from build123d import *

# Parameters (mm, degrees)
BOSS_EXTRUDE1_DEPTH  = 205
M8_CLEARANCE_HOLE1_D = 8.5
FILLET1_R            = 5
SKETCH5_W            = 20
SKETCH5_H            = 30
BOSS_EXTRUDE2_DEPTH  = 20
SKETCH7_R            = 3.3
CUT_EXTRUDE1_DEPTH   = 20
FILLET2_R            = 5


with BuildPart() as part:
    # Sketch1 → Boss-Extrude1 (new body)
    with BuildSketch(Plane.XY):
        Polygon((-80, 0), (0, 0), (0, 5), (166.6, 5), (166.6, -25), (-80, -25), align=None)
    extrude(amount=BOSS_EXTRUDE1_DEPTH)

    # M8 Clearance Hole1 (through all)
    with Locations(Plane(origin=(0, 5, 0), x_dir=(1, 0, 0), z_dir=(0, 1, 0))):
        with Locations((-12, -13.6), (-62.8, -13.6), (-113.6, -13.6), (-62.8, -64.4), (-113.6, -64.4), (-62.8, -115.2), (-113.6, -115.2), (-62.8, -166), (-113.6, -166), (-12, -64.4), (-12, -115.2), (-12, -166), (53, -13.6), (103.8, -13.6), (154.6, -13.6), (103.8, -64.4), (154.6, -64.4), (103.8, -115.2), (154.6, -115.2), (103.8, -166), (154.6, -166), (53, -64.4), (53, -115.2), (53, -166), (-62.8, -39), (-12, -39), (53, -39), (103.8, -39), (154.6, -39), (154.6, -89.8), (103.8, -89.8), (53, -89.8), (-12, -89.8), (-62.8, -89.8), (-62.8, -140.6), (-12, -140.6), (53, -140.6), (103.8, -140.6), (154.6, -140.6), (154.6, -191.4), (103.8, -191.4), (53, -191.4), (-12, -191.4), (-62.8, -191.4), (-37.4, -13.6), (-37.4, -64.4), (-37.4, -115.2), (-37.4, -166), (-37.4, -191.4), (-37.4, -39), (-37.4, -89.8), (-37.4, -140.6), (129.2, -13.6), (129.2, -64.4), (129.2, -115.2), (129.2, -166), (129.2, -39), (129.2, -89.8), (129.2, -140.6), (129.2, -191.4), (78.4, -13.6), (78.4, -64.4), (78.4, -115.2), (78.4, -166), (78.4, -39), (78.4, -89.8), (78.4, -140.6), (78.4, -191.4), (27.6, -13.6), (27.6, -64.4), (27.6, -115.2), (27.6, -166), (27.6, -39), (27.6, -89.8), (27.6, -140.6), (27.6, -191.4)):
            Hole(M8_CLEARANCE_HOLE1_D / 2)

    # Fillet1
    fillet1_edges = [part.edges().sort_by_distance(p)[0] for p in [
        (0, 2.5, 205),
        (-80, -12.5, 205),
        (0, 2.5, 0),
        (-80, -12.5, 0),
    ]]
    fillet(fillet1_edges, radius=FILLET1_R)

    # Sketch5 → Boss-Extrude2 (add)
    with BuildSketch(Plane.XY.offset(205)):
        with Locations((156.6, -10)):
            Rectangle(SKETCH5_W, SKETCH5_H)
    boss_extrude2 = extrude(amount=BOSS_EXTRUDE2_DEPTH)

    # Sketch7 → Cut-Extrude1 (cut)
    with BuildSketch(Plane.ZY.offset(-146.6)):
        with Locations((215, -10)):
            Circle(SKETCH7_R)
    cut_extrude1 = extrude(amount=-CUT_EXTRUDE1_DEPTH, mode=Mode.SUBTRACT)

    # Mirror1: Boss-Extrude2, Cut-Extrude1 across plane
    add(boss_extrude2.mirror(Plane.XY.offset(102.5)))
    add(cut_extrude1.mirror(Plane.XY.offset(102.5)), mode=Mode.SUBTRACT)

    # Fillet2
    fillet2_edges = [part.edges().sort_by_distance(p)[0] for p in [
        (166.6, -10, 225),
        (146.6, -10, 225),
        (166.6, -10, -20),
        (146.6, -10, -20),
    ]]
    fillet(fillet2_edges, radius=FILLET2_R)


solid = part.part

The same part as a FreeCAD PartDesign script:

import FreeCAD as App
import Part
import Sketcher
from FreeCAD import Vector


def edges_at(feature, points):
    """Names of the edges that pass closest to the given points."""
    edges = feature.Shape.Edges
    near = lambda p: min(range(len(edges)), key=lambda i: edges[i].distToShape(Part.Vertex(*p))[0])
    return sorted({f"Edge{near(p) + 1}" for p in points})

doc = App.newDocument("Part")
body = doc.addObject("PartDesign::Body", "Body")

sketch1 = body.newObject("Sketcher::SketchObject", "Sketch")
sketch1.AttachmentSupport = (doc.getObject("XY_Plane"), [""])
sketch1.MapMode = "FlatFace"
sketch1.addGeometry([
    Part.LineSegment(Vector(0, 0, 0), Vector(-80, 0, 0)),
    Part.LineSegment(Vector(-80, 0, 0), Vector(-80, -25, 0)),
    Part.LineSegment(Vector(-80, -25, 0), Vector(167, -25, 0)),
    Part.LineSegment(Vector(167, -25, 0), Vector(167, 5, 0)),
    Part.LineSegment(Vector(167, 5, 0), Vector(0, 5, 0)),
    Part.LineSegment(Vector(0, 5, 0), Vector(0, 0, 0)),
], False)
sketch1.addConstraint([
    Sketcher.Constraint("Coincident", 0, 2, 1, 1),
    Sketcher.Constraint("Coincident", 1, 2, 2, 1),
    Sketcher.Constraint("Coincident", 2, 2, 3, 1),
    Sketcher.Constraint("Coincident", 3, 2, 4, 1),
    Sketcher.Constraint("Coincident", 4, 2, 5, 1),
    Sketcher.Constraint("Coincident", 5, 2, 0, 1),
    Sketcher.Constraint("Horizontal", 0),
    Sketcher.Constraint("Vertical", 1),
    Sketcher.Constraint("Horizontal", 2),
    Sketcher.Constraint("Vertical", 3),
    Sketcher.Constraint("Horizontal", 4),
    Sketcher.Constraint("Vertical", 5),
    Sketcher.Constraint("Coincident", 5, 2, -1, 1),
    Sketcher.Constraint("DistanceX", 0, 2, 0, 1, 80.0),
    Sketcher.Constraint("DistanceY", 1, 2, 1, 1, 25.0),
    Sketcher.Constraint("DistanceY", 3, 1, 3, 2, 30.0),
    Sketcher.Constraint("DistanceX", 2, 1, 2, 2, 246.6),
])
pad1 = body.newObject("PartDesign::Pad", "Pad")
pad1.Profile = sketch1
pad1.Length = 205

sketch2 = body.newObject("Sketcher::SketchObject", "Sketch001")
sketch2.AttachmentSupport = (doc.getObject("XZ_Plane"), [""])
sketch2.MapMode = "FlatFace"
sketch2.AttachmentOffset = App.Placement(Vector(0, 0, -5), App.Rotation())
sketch2.addGeometry([
    Part.Circle(Vector(-12, 13.6, 0), Vector(0, 0, 1), 4.2),
    Part.Circle(Vector(-62.8, 13.6, 0), Vector(0, 0, 1), 4.2),
    Part.Circle(Vector(-113.6, 13.6, 0), Vector(0, 0, 1), 4.2),
    Part.Circle(Vector(-62.8, 64.4, 0), Vector(0, 0, 1), 4.2),
    Part.Circle(Vector(-113.6, 64.4, 0), Vector(0, 0, 1), 4.2),
    Part.Circle(Vector(-62.8, 115.2, 0), Vector(0, 0, 1), 4.2),
    Part.Circle(Vector(-113.6, 115.2, 0), Vector(0, 0, 1), 4.2),
    Part.Circle(Vector(-62.8, 166, 0), Vector(0, 0, 1), 4.2),
    Part.Circle(Vector(-113.6, 166, 0), Vector(0, 0, 1), 4.2),
    Part.Circle(Vector(-12, 64.4, 0), Vector(0, 0, 1), 4.2),
    Part.Circle(Vector(-12, 115.2, 0), Vector(0, 0, 1), 4.2),
    Part.Circle(Vector(-12, 166, 0), Vector(0, 0, 1), 4.2),
    Part.Circle(Vector(53, 13.6, 0), Vector(0, 0, 1), 4.2),
    Part.Circle(Vector(103.8, 13.6, 0), Vector(0, 0, 1), 4.2),
    Part.Circle(Vector(154.6, 13.6, 0), Vector(0, 0, 1), 4.2),
    Part.Circle(Vector(103.8, 64.4, 0), Vector(0, 0, 1), 4.2),
    Part.Circle(Vector(154.6, 64.4, 0), Vector(0, 0, 1), 4.2),
    Part.Circle(Vector(103.8, 115.2, 0), Vector(0, 0, 1), 4.2),
    Part.Circle(Vector(154.6, 115.2, 0), Vector(0, 0, 1), 4.2),
    Part.Circle(Vector(103.8, 166, 0), Vector(0, 0, 1), 4.2),
    Part.Circle(Vector(154.6, 166, 0), Vector(0, 0, 1), 4.2),
    Part.Circle(Vector(53, 64.4, 0), Vector(0, 0, 1), 4.2),
    Part.Circle(Vector(53, 115.2, 0), Vector(0, 0, 1), 4.2),
    Part.Circle(Vector(53, 166, 0), Vector(0, 0, 1), 4.2),
    Part.Circle(Vector(-62.8, 39, 0), Vector(0, 0, 1), 4.2),
    Part.Circle(Vector(-12, 39, 0), Vector(0, 0, 1), 4.2),
    Part.Circle(Vector(53, 39, 0), Vector(0, 0, 1), 4.2),
    Part.Circle(Vector(103.8, 39, 0), Vector(0, 0, 1), 4.2),
    Part.Circle(Vector(154.6, 39, 0), Vector(0, 0, 1), 4.2),
    Part.Circle(Vector(154.6, 89.8, 0), Vector(0, 0, 1), 4.2),
    Part.Circle(Vector(103.8, 89.8, 0), Vector(0, 0, 1), 4.2),
    Part.Circle(Vector(53, 89.8, 0), Vector(0, 0, 1), 4.2),
    Part.Circle(Vector(-12, 89.8, 0), Vector(0, 0, 1), 4.2),
    Part.Circle(Vector(-62.8, 89.8, 0), Vector(0, 0, 1), 4.2),
    Part.Circle(Vector(-62.8, 140.6, 0), Vector(0, 0, 1), 4.2),
    Part.Circle(Vector(-12, 140.6, 0), Vector(0, 0, 1), 4.2),
    Part.Circle(Vector(53, 140.6, 0), Vector(0, 0, 1), 4.2),
    Part.Circle(Vector(103.8, 140.6, 0), Vector(0, 0, 1), 4.2),
    Part.Circle(Vector(154.6, 140.6, 0), Vector(0, 0, 1), 4.2),
    Part.Circle(Vector(154.6, 191.4, 0), Vector(0, 0, 1), 4.2),
    Part.Circle(Vector(103.8, 191.4, 0), Vector(0, 0, 1), 4.2),
    Part.Circle(Vector(53, 191.4, 0), Vector(0, 0, 1), 4.2),
    Part.Circle(Vector(-12, 191.4, 0), Vector(0, 0, 1), 4.2),
    Part.Circle(Vector(-62.8, 191.4, 0), Vector(0, 0, 1), 4.2),
    Part.Circle(Vector(-37.4, 13.6, 0), Vector(0, 0, 1), 4.2),
    Part.Circle(Vector(-37.4, 64.4, 0), Vector(0, 0, 1), 4.2),
    Part.Circle(Vector(-37.4, 115.2, 0), Vector(0, 0, 1), 4.2),
    Part.Circle(Vector(-37.4, 166, 0), Vector(0, 0, 1), 4.2),
    Part.Circle(Vector(-37.4, 191.4, 0), Vector(0, 0, 1), 4.2),
    Part.Circle(Vector(-37.4, 39, 0), Vector(0, 0, 1), 4.2),
    Part.Circle(Vector(-37.4, 89.8, 0), Vector(0, 0, 1), 4.2),
    Part.Circle(Vector(-37.4, 140.6, 0), Vector(0, 0, 1), 4.2),
    Part.Circle(Vector(129.2, 13.6, 0), Vector(0, 0, 1), 4.2),
    Part.Circle(Vector(129.2, 64.4, 0), Vector(0, 0, 1), 4.2),
    Part.Circle(Vector(129.2, 115.2, 0), Vector(0, 0, 1), 4.2),
    Part.Circle(Vector(129.2, 166, 0), Vector(0, 0, 1), 4.2),
    Part.Circle(Vector(129.2, 39, 0), Vector(0, 0, 1), 4.2),
    Part.Circle(Vector(129.2, 89.8, 0), Vector(0, 0, 1), 4.2),
    Part.Circle(Vector(129.2, 140.6, 0), Vector(0, 0, 1), 4.2),
    Part.Circle(Vector(129.2, 191.4, 0), Vector(0, 0, 1), 4.2),
    Part.Circle(Vector(78.4, 13.6, 0), Vector(0, 0, 1), 4.2),
    Part.Circle(Vector(78.4, 64.4, 0), Vector(0, 0, 1), 4.2),
    Part.Circle(Vector(78.4, 115.2, 0), Vector(0, 0, 1), 4.2),
    Part.Circle(Vector(78.4, 166, 0), Vector(0, 0, 1), 4.2),
    Part.Circle(Vector(78.4, 39, 0), Vector(0, 0, 1), 4.2),
    Part.Circle(Vector(78.4, 89.8, 0), Vector(0, 0, 1), 4.2),
    Part.Circle(Vector(78.4, 140.6, 0), Vector(0, 0, 1), 4.2),
    Part.Circle(Vector(78.4, 191.4, 0), Vector(0, 0, 1), 4.2),
    Part.Circle(Vector(27.6, 13.6, 0), Vector(0, 0, 1), 4.2),
    Part.Circle(Vector(27.6, 64.4, 0), Vector(0, 0, 1), 4.2),
    Part.Circle(Vector(27.6, 115.2, 0), Vector(0, 0, 1), 4.2),
    Part.Circle(Vector(27.6, 166, 0), Vector(0, 0, 1), 4.2),
    Part.Circle(Vector(27.6, 39, 0), Vector(0, 0, 1), 4.2),
    Part.Circle(Vector(27.6, 89.8, 0), Vector(0, 0, 1), 4.2),
    Part.Circle(Vector(27.6, 140.6, 0), Vector(0, 0, 1), 4.2),
    Part.Circle(Vector(27.6, 191.4, 0), Vector(0, 0, 1), 4.2),
], False)
sketch2.addConstraint([
    Sketcher.Constraint("Equal", 0, 1),
    Sketcher.Constraint("Equal", 1, 2),
    Sketcher.Constraint("Equal", 2, 3),
    Sketcher.Constraint("Equal", 3, 4),
    Sketcher.Constraint("Equal", 4, 5),
    Sketcher.Constraint("Equal", 5, 6),
    Sketcher.Constraint("Equal", 6, 7),
    Sketcher.Constraint("Equal", 7, 8),
    Sketcher.Constraint("Equal", 8, 9),
    Sketcher.Constraint("Equal", 9, 10),
    Sketcher.Constraint("Equal", 10, 11),
    Sketcher.Constraint("Equal", 11, 12),
    Sketcher.Constraint("Equal", 12, 13),
    Sketcher.Constraint("Equal", 13, 14),
    Sketcher.Constraint("Equal", 14, 15),
    Sketcher.Constraint("Equal", 15, 16),
    Sketcher.Constraint("Equal", 16, 17),
    Sketcher.Constraint("Equal", 17, 18),
    Sketcher.Constraint("Equal", 18, 19),
    Sketcher.Constraint("Equal", 19, 20),
    Sketcher.Constraint("Equal", 20, 21),
    Sketcher.Constraint("Equal", 21, 22),
    Sketcher.Constraint("Equal", 22, 23),
    Sketcher.Constraint("Equal", 23, 24),
    Sketcher.Constraint("Equal", 24, 25),
    Sketcher.Constraint("Equal", 25, 26),
    Sketcher.Constraint("Equal", 26, 27),
    Sketcher.Constraint("Equal", 27, 28),
    Sketcher.Constraint("Equal", 28, 29),
    Sketcher.Constraint("Equal", 29, 30),
    Sketcher.Constraint("Equal", 30, 31),
    Sketcher.Constraint("Equal", 31, 32),
    Sketcher.Constraint("Equal", 32, 33),
    Sketcher.Constraint("Equal", 33, 34),
    Sketcher.Constraint("Equal", 34, 35),
    Sketcher.Constraint("Equal", 35, 36),
    Sketcher.Constraint("Equal", 36, 37),
    Sketcher.Constraint("Equal", 37, 38),
    Sketcher.Constraint("Equal", 38, 39),
    Sketcher.Constraint("Equal", 39, 40),
    Sketcher.Constraint("Equal", 40, 41),
    Sketcher.Constraint("Equal", 41, 42),
    Sketcher.Constraint("Equal", 42, 43),
    Sketcher.Constraint("Equal", 43, 44),
    Sketcher.Constraint("Equal", 44, 45),
    Sketcher.Constraint("Equal", 45, 46),
    Sketcher.Constraint("Equal", 46, 47),
    Sketcher.Constraint("Equal", 47, 48),
    Sketcher.Constraint("Equal", 48, 49),
    Sketcher.Constraint("Equal", 49, 50),
    Sketcher.Constraint("Equal", 50, 51),
    Sketcher.Constraint("Equal", 51, 52),
    Sketcher.Constraint("Equal", 52, 53),
    Sketcher.Constraint("Equal", 53, 54),
    Sketcher.Constraint("Equal", 54, 55),
    Sketcher.Constraint("Equal", 55, 56),
    Sketcher.Constraint("Equal", 56, 57),
    Sketcher.Constraint("Equal", 57, 58),
    Sketcher.Constraint("Equal", 58, 59),
    Sketcher.Constraint("Equal", 59, 60),
    Sketcher.Constraint("Equal", 60, 61),
    Sketcher.Constraint("Equal", 61, 62),
    Sketcher.Constraint("Equal", 62, 63),
    Sketcher.Constraint("Equal", 63, 64),
    Sketcher.Constraint("Equal", 64, 65),
    Sketcher.Constraint("Equal", 65, 66),
    Sketcher.Constraint("Equal", 66, 67),
    Sketcher.Constraint("Equal", 67, 68),
    Sketcher.Constraint("Equal", 68, 69),
    Sketcher.Constraint("Equal", 69, 70),
    Sketcher.Constraint("Equal", 70, 71),
    Sketcher.Constraint("Equal", 71, 72),
    Sketcher.Constraint("Equal", 72, 73),
    Sketcher.Constraint("Equal", 73, 74),
    Sketcher.Constraint("Equal", 74, 75),
    Sketcher.Constraint("Horizontal", 0, 3, 1, 3),
    Sketcher.Constraint("Horizontal", 1, 3, 2, 3),
    Sketcher.Constraint("Horizontal", 3, 3, 4, 3),
    Sketcher.Constraint("Horizontal", 5, 3, 6, 3),
    Sketcher.Constraint("Horizontal", 7, 3, 8, 3),
    Sketcher.Constraint("Horizontal", 4, 3, 9, 3),
    Sketcher.Constraint("Horizontal", 6, 3, 10, 3),
    Sketcher.Constraint("Horizontal", 8, 3, 11, 3),
    Sketcher.Constraint("Horizontal", 2, 3, 12, 3),
    Sketcher.Constraint("Horizontal", 12, 3, 13, 3),
    Sketcher.Constraint("Horizontal", 13, 3, 14, 3),
    Sketcher.Constraint("Horizontal", 9, 3, 15, 3),
    Sketcher.Constraint("Horizontal", 15, 3, 16, 3),
    Sketcher.Constraint("Horizontal", 10, 3, 17, 3),
    Sketcher.Constraint("Horizontal", 17, 3, 18, 3),
    Sketcher.Constraint("Horizontal", 11, 3, 19, 3),
    Sketcher.Constraint("Horizontal", 19, 3, 20, 3),
    Sketcher.Constraint("Horizontal", 16, 3, 21, 3),
    Sketcher.Constraint("Horizontal", 18, 3, 22, 3),
    Sketcher.Constraint("Horizontal", 20, 3, 23, 3),
    Sketcher.Constraint("Horizontal", 24, 3, 25, 3),
    Sketcher.Constraint("Horizontal", 25, 3, 26, 3),
    Sketcher.Constraint("Horizontal", 26, 3, 27, 3),
    Sketcher.Constraint("Horizontal", 27, 3, 28, 3),
    Sketcher.Constraint("Horizontal", 29, 3, 30, 3),
    Sketcher.Constraint("Horizontal", 30, 3, 31, 3),
    Sketcher.Constraint("Horizontal", 31, 3, 32, 3),
    Sketcher.Constraint("Horizontal", 32, 3, 33, 3),
    Sketcher.Constraint("Horizontal", 34, 3, 35, 3),
    Sketcher.Constraint("Horizontal", 35, 3, 36, 3),
    Sketcher.Constraint("Horizontal", 36, 3, 37, 3),
    Sketcher.Constraint("Horizontal", 37, 3, 38, 3),
    Sketcher.Constraint("Horizontal", 39, 3, 40, 3),
    Sketcher.Constraint("Horizontal", 40, 3, 41, 3),
    Sketcher.Constraint("Horizontal", 41, 3, 42, 3),
    Sketcher.Constraint("Horizontal", 42, 3, 43, 3),
    Sketcher.Constraint("Horizontal", 14, 3, 44, 3),
    Sketcher.Constraint("Horizontal", 21, 3, 45, 3),
    Sketcher.Constraint("Horizontal", 22, 3, 46, 3),
    Sketcher.Constraint("Horizontal", 23, 3, 47, 3),
    Sketcher.Constraint("Horizontal", 43, 3, 48, 3),
    Sketcher.Constraint("Horizontal", 28, 3, 49, 3),
    Sketcher.Constraint("Horizontal", 33, 3, 50, 3),
    Sketcher.Constraint("Horizontal", 38, 3, 51, 3),
    Sketcher.Constraint("Horizontal", 44, 3, 52, 3),
    Sketcher.Constraint("Horizontal", 45, 3, 53, 3),
    Sketcher.Constraint("Horizontal", 46, 3, 54, 3),
    Sketcher.Constraint("Horizontal", 47, 3, 55, 3),
    Sketcher.Constraint("Horizontal", 49, 3, 56, 3),
    Sketcher.Constraint("Horizontal", 50, 3, 57, 3),
    Sketcher.Constraint("Horizontal", 51, 3, 58, 3),
    Sketcher.Constraint("Horizontal", 48, 3, 59, 3),
    Sketcher.Constraint("Horizontal", 52, 3, 60, 3),
    Sketcher.Constraint("Horizontal", 53, 3, 61, 3),
    Sketcher.Constraint("Horizontal", 54, 3, 62, 3),
    Sketcher.Constraint("Horizontal", 55, 3, 63, 3),
    Sketcher.Constraint("Horizontal", 56, 3, 64, 3),
    Sketcher.Constraint("Horizontal", 57, 3, 65, 3),
    Sketcher.Constraint("Horizontal", 58, 3, 66, 3),
    Sketcher.Constraint("Horizontal", 59, 3, 67, 3),
    Sketcher.Constraint("Horizontal", 60, 3, 68, 3),
    Sketcher.Constraint("Horizontal", 61, 3, 69, 3),
    Sketcher.Constraint("Horizontal", 62, 3, 70, 3),
    Sketcher.Constraint("Horizontal", 63, 3, 71, 3),
    Sketcher.Constraint("Horizontal", 64, 3, 72, 3),
    Sketcher.Constraint("Horizontal", 65, 3, 73, 3),
    Sketcher.Constraint("Horizontal", 66, 3, 74, 3),
    Sketcher.Constraint("Horizontal", 67, 3, 75, 3),
    Sketcher.Constraint("Vertical", 1, 3, 3, 3),
    Sketcher.Constraint("Vertical", 2, 3, 4, 3),
    Sketcher.Constraint("Vertical", 3, 3, 5, 3),
    Sketcher.Constraint("Vertical", 4, 3, 6, 3),
    Sketcher.Constraint("Vertical", 5, 3, 7, 3),
    Sketcher.Constraint("Vertical", 6, 3, 8, 3),
    Sketcher.Constraint("Vertical", 0, 3, 9, 3),
    Sketcher.Constraint("Vertical", 9, 3, 10, 3),
    Sketcher.Constraint("Vertical", 10, 3, 11, 3),
    Sketcher.Constraint("Vertical", 13, 3, 15, 3),
    Sketcher.Constraint("Vertical", 14, 3, 16, 3),
    Sketcher.Constraint("Vertical", 15, 3, 17, 3),
    Sketcher.Constraint("Vertical", 16, 3, 18, 3),
    Sketcher.Constraint("Vertical", 17, 3, 19, 3),
    Sketcher.Constraint("Vertical", 18, 3, 20, 3),
    Sketcher.Constraint("Vertical", 12, 3, 21, 3),
    Sketcher.Constraint("Vertical", 21, 3, 22, 3),
    Sketcher.Constraint("Vertical", 22, 3, 23, 3),
    Sketcher.Constraint("Vertical", 7, 3, 24, 3),
    Sketcher.Constraint("Vertical", 11, 3, 25, 3),
    Sketcher.Constraint("Vertical", 23, 3, 26, 3),
    Sketcher.Constraint("Vertical", 19, 3, 27, 3),
    Sketcher.Constraint("Vertical", 20, 3, 28, 3),
    Sketcher.Constraint("Vertical", 28, 3, 29, 3),
    Sketcher.Constraint("Vertical", 27, 3, 30, 3),
    Sketcher.Constraint("Vertical", 26, 3, 31, 3),
    Sketcher.Constraint("Vertical", 25, 3, 32, 3),
    Sketcher.Constraint("Vertical", 24, 3, 33, 3),
    Sketcher.Constraint("Vertical", 33, 3, 34, 3),
    Sketcher.Constraint("Vertical", 32, 3, 35, 3),
    Sketcher.Constraint("Vertical", 31, 3, 36, 3),
    Sketcher.Constraint("Vertical", 30, 3, 37, 3),
    Sketcher.Constraint("Vertical", 29, 3, 38, 3),
    Sketcher.Constraint("Vertical", 38, 3, 39, 3),
    Sketcher.Constraint("Vertical", 37, 3, 40, 3),
    Sketcher.Constraint("Vertical", 36, 3, 41, 3),
    Sketcher.Constraint("Vertical", 35, 3, 42, 3),
    Sketcher.Constraint("Vertical", 34, 3, 43, 3),
    Sketcher.Constraint("Vertical", 44, 3, 45, 3),
    Sketcher.Constraint("Vertical", 45, 3, 46, 3),
    Sketcher.Constraint("Vertical", 46, 3, 47, 3),
    Sketcher.Constraint("Vertical", 47, 3, 48, 3),
    Sketcher.Constraint("Vertical", 48, 3, 49, 3),
    Sketcher.Constraint("Vertical", 49, 3, 50, 3),
    Sketcher.Constraint("Vertical", 50, 3, 51, 3),
    Sketcher.Constraint("Vertical", 52, 3, 53, 3),
    Sketcher.Constraint("Vertical", 53, 3, 54, 3),
    Sketcher.Constraint("Vertical", 54, 3, 55, 3),
    Sketcher.Constraint("Vertical", 55, 3, 56, 3),
    Sketcher.Constraint("Vertical", 56, 3, 57, 3),
    Sketcher.Constraint("Vertical", 57, 3, 58, 3),
    Sketcher.Constraint("Vertical", 58, 3, 59, 3),
    Sketcher.Constraint("Vertical", 60, 3, 61, 3),
    Sketcher.Constraint("Vertical", 61, 3, 62, 3),
    Sketcher.Constraint("Vertical", 62, 3, 63, 3),
    Sketcher.Constraint("Vertical", 63, 3, 64, 3),
    Sketcher.Constraint("Vertical", 64, 3, 65, 3),
    Sketcher.Constraint("Vertical", 65, 3, 66, 3),
    Sketcher.Constraint("Vertical", 66, 3, 67, 3),
    Sketcher.Constraint("Vertical", 68, 3, 69, 3),
    Sketcher.Constraint("Vertical", 69, 3, 70, 3),
    Sketcher.Constraint("Vertical", 70, 3, 71, 3),
    Sketcher.Constraint("Vertical", 71, 3, 72, 3),
    Sketcher.Constraint("Vertical", 72, 3, 73, 3),
    Sketcher.Constraint("Vertical", 73, 3, 74, 3),
    Sketcher.Constraint("Vertical", 74, 3, 75, 3),
    Sketcher.Constraint("Diameter", 0, 8.5),
    Sketcher.Constraint("DistanceX", 0, 3, -1, 1, 12.0),
    Sketcher.Constraint("DistanceY", -1, 1, 7, 3, 166.0),
    Sketcher.Constraint("DistanceX", -1, 1, 12, 3, 53.0),
    Sketcher.Constraint("DistanceY", -1, 1, 24, 3, 39.0),
    Sketcher.Constraint("DistanceY", -1, 1, 0, 3, 13.6),
    Sketcher.Constraint("DistanceX", 1, 3, -1, 1, 62.8),
    Sketcher.Constraint("DistanceX", 2, 3, -1, 1, 113.6),
    Sketcher.Constraint("DistanceY", -1, 1, 3, 3, 64.4),
    Sketcher.Constraint("DistanceY", -1, 1, 5, 3, 115.2),
    Sketcher.Constraint("DistanceX", -1, 1, 13, 3, 103.8),
    Sketcher.Constraint("DistanceX", -1, 1, 14, 3, 154.6),
    Sketcher.Constraint("DistanceY", -1, 1, 29, 3, 89.8),
    Sketcher.Constraint("DistanceY", -1, 1, 34, 3, 140.6),
    Sketcher.Constraint("DistanceY", -1, 1, 39, 3, 191.4),
    Sketcher.Constraint("DistanceX", 44, 3, -1, 1, 37.4),
    Sketcher.Constraint("DistanceX", -1, 1, 52, 3, 129.2),
    Sketcher.Constraint("DistanceX", -1, 1, 60, 3, 78.4),
    Sketcher.Constraint("DistanceX", -1, 1, 68, 3, 27.6),
])
doc.recompute()
hole = body.newObject("PartDesign::Hole", "Hole")
hole.Profile = sketch2
hole.ThreadType = "None"
hole.Diameter = 8.5
hole.DepthType = "ThroughAll"
hole.Reversed = True
doc.recompute()

fillet = body.newObject("PartDesign::Fillet", "Fillet")
fillet.Base = (hole, edges_at(hole, [
    (0, 2.5, 205),
    (-80, -12.5, 205),
    (0, 2.5, 0),
    (-80, -12.5, 0),
]))
fillet.Radius = 5

sketch3 = body.newObject("Sketcher::SketchObject", "Sketch002")
sketch3.AttachmentSupport = (doc.getObject("XY_Plane"), [""])
sketch3.MapMode = "FlatFace"
sketch3.AttachmentOffset = App.Placement(Vector(0, 0, 205), App.Rotation())
sketch3.addGeometry([
    Part.LineSegment(Vector(147, 5, 0), Vector(147, -25, 0)),
    Part.LineSegment(Vector(147, -25, 0), Vector(167, -25, 0)),
    Part.LineSegment(Vector(167, -25, 0), Vector(167, 5, 0)),
    Part.LineSegment(Vector(167, 5, 0), Vector(147, 5, 0)),
], False)
sketch3.addConstraint([
    Sketcher.Constraint("Coincident", 0, 2, 1, 1),
    Sketcher.Constraint("Coincident", 1, 2, 2, 1),
    Sketcher.Constraint("Coincident", 2, 2, 3, 1),
    Sketcher.Constraint("Coincident", 3, 2, 0, 1),
    Sketcher.Constraint("Vertical", 0),
    Sketcher.Constraint("Horizontal", 1),
    Sketcher.Constraint("Vertical", 2),
    Sketcher.Constraint("Horizontal", 3),
    Sketcher.Constraint("DistanceX", 1, 1, 1, 2, 20.0),
    Sketcher.Constraint("DistanceY", 0, 2, 0, 1, 30.0),
    Sketcher.Constraint("DistanceY", 0, 2, -1, 1, 25.0),
    Sketcher.Constraint("DistanceX", -1, 1, 0, 2, 146.6),
])
pad2 = body.newObject("PartDesign::Pad", "Pad001")
pad2.Profile = sketch3
pad2.Length = 20

sketch4 = body.newObject("Sketcher::SketchObject", "Sketch003")
sketch4.AttachmentSupport = (doc.getObject("YZ_Plane"), [""])
sketch4.MapMode = "FlatFace"
sketch4.AttachmentOffset = App.Placement(Vector(0, 0, 146.6), App.Rotation())
sketch4.addGeometry(Part.Circle(Vector(-10, 215, 0), Vector(0, 0, 1), 3.3), False)
sketch4.addConstraint([
    Sketcher.Constraint("Diameter", 0, 6.6),
    Sketcher.Constraint("DistanceX", 0, 3, -1, 1, 10.0),
    Sketcher.Constraint("DistanceY", -1, 1, 0, 3, 215.0),
])
pocket1 = body.newObject("PartDesign::Pocket", "Pocket")
pocket1.Profile = sketch4
pocket1.Length = 20
pocket1.Reversed = True
doc.recompute()

datumplane = body.newObject("PartDesign::Plane", "DatumPlane")
datumplane.AttachmentSupport = (doc.getObject("XY_Plane"), [""])
datumplane.MapMode = "FlatFace"
datumplane.AttachmentOffset = App.Placement(Vector(0, 0, 102.5), App.Rotation())
mirrored = body.newObject("PartDesign::Mirrored", "Mirrored")
mirrored.Originals = [pad2, pocket1]
mirrored.MirrorPlane = (datumplane, [""])
body.Tip = mirrored
doc.recompute()

fillet2 = body.newObject("PartDesign::Fillet", "Fillet001")
fillet2.Base = (mirrored, edges_at(mirrored, [
    (166.6, -10, 225),
    (146.6, -10, 225),
    (166.6, -10, -20),
    (146.6, -10, -20),
]))
fillet2.Radius = 5

doc.recompute()
